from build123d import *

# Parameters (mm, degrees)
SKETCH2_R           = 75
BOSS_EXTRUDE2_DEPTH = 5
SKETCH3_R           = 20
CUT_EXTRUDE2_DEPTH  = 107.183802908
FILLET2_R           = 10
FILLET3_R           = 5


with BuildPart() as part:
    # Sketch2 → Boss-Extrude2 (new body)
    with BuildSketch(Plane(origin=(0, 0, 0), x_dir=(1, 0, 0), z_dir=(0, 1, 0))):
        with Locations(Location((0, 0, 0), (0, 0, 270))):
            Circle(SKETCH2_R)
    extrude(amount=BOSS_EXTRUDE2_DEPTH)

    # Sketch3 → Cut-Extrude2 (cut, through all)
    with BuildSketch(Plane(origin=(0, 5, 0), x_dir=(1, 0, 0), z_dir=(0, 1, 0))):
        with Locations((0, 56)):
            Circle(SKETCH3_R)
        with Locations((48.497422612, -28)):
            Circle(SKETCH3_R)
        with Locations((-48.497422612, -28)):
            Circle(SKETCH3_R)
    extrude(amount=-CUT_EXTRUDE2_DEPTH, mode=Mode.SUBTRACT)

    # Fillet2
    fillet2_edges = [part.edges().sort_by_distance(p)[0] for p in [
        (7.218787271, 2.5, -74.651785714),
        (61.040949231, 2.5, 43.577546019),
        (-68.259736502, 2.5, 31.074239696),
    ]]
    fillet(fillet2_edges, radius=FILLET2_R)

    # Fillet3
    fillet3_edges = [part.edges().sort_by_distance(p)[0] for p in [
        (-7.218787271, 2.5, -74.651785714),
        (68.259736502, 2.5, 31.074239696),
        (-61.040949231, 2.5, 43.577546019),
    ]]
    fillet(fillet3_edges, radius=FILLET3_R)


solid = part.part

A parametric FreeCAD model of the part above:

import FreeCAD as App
import Part
import Sketcher
from FreeCAD import Vector


def edges_at(feature, points):
    """Names of the edges that pass closest to the given points."""
    edges = feature.Shape.Edges
    near = lambda p: min(range(len(edges)), key=lambda i: edges[i].distToShape(Part.Vertex(*p))[0])
    return sorted({f"Edge{near(p) + 1}" for p in points})

doc = App.newDocument("Part")
params = doc.addObject("Spreadsheet::Sheet", "Params")
for row, (alias, value) in enumerate([
    ("sketch1_diameter", "150 mm"),
    ("pad1_length", "5 mm"),
    ("sketch2_diameter", "40 mm"),
    ("fillet_radius", "10 mm"),
    ("fillet2_radius", "5 mm"),
], start=1):
    params.set(f"A{row}", alias)
    params.set(f"B{row}", "=" + value)
    params.setAlias(f"B{row}", alias)

body = doc.addObject("PartDesign::Body", "Body")

sketch1 = body.newObject("Sketcher::SketchObject", "Sketch")
sketch1.AttachmentSupport = (doc.getObject("XZ_Plane"), [""])
sketch1.MapMode = "FlatFace"
sketch1.addGeometry(Part.Circle(Vector(0, 0, 0), Vector(0, 0, 1), 75), False)
sketch1.addConstraint(Sketcher.Constraint("Coincident", 0, 3, -1, 1))
sketch1.addConstraint(Sketcher.Constraint("Diameter", 0, 150.0))
sketch1.setExpression("Constraints[1]", "Params.sketch1_diameter")
pad1 = body.newObject("PartDesign::Pad", "Pad")
pad1.Profile = sketch1
pad1.setExpression("Length", "Params.pad1_length")
pad1.Reversed = True

sketch2 = body.newObject("Sketcher::SketchObject", "Sketch001")
sketch2.AttachmentSupport = (doc.getObject("XZ_Plane"), [""])
sketch2.MapMode = "FlatFace"
sketch2.AttachmentOffset = App.Placement(Vector(0, 0, -5), App.Rotation())
sketch2.addGeometry(Part.Circle(Vector(0, -56, 0), Vector(0, 0, 1), 20), False)
sketch2.addGeometry(Part.Circle(Vector(48, 28, 0), Vector(0, 0, 1), 20), False)
sketch2.addGeometry(Part.Circle(Vector(-48, 28, 0), Vector(0, 0, 1), 20), False)
sketch2.addConstraint(Sketcher.Constraint("Equal", 0, 1))
sketch2.addConstraint(Sketcher.Constraint("Equal", 1, 2))
sketch2.addConstraint(Sketcher.Constraint("Symmetric", 1, 3, 2, 3, -2))
sketch2.addConstraint(Sketcher.Constraint("PointOnObject", 0, 3, -2))
sketch2.addConstraint(Sketcher.Constraint("Diameter", 0, 40.0))
sketch2.addConstraint(Sketcher.Constraint("DistanceY", 0, 3, -1, 1, 56.0))
sketch2.addConstraint(Sketcher.Constraint("DistanceY", -1, 1, 1, 3, 28.0))
sketch2.addConstraint(Sketcher.Constraint("DistanceX", -1, 1, 1, 3, 48.497423))
sketch2.setExpression("Constraints[4]", "Params.sketch2_diameter")
pocket1 = body.newObject("PartDesign::Pocket", "Pocket")
pocket1.Profile = sketch2
pocket1.Type = "ThroughAll"
pocket1.Reversed = True
doc.recompute()

fillet = body.newObject("PartDesign::Fillet", "Fillet")
fillet.Base = (pocket1, edges_at(pocket1, [(7.219, 2.5, -74.652), (61.041, 2.5, 43.578), (-68.26, 2.5, 31.074)]))
fillet.setExpression("Radius", "Params.fillet_radius")
doc.recompute()

fillet2 = body.newObject("PartDesign::Fillet", "Fillet001")
fillet2.Base = (fillet, edges_at(fillet, [(-7.219, 2.5, -74.652), (68.26, 2.5, 31.074), (-61.041, 2.5, 43.578)]))
fillet2.setExpression("Radius", "Params.fillet2_radius")

doc.recompute()
